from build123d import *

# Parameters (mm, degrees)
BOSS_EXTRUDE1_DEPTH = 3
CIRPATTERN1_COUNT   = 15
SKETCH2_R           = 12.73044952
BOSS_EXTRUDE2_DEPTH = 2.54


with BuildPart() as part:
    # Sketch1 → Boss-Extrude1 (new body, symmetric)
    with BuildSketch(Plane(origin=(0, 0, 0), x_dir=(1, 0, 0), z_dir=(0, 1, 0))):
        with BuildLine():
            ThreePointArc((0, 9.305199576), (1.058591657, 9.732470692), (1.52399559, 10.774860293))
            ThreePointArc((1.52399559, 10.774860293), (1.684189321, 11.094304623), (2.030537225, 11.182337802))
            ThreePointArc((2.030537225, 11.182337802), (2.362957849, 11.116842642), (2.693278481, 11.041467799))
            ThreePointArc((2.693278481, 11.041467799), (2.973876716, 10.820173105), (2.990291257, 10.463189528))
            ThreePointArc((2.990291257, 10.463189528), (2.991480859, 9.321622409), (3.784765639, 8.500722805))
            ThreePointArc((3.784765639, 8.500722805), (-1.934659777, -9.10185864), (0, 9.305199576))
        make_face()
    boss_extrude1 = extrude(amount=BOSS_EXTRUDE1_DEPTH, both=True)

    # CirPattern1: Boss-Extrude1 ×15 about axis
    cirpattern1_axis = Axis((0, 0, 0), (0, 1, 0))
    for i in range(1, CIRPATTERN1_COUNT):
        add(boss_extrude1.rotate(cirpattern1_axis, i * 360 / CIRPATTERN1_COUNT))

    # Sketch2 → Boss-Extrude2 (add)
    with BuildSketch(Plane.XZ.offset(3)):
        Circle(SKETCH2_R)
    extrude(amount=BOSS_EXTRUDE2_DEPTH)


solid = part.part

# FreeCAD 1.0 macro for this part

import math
import FreeCAD as App
import Part
import Sketcher

doc = App.newDocument("Part")
params = doc.addObject("Spreadsheet::Sheet", "Params")
for row, (alias, value) in enumerate([
    ("sketch1_radius", "0.43 mm"),
    ("pad1_length", "6 mm"),
    ("pad2_length", "2.54 mm"),
], start=1):
    params.set(f"A{row}", alias)
    params.set(f"B{row}", "=" + value)
    params.setAlias(f"B{row}", alias)

body = doc.addObject("PartDesign::Body", "Body")

# Sketch on XZ plane
sketch1 = body.newObject("Sketcher::SketchObject", "Sketch")
sketch1.AttachmentSupport = (doc.getObject("XZ_Plane"), [""])
sketch1.MapMode = "FlatFace"
sketch1.addGeometry([
    Part.ArcOfCircle(Part.Circle(App.Vector(0, -10.8302, 0), App.Vector(0, 0, 1), 1.525), math.radians(2.079609), math.radians(90)),  # 0
    Part.ArcOfCircle(Part.Circle(App.Vector(0, 0, 0), App.Vector(0, 0, 1), 9.3052), math.radians(-66), math.radians(270)),  # 1
    Part.ArcOfCircle(Part.Circle(App.Vector(4.405039, -9.89388, 0), App.Vector(0, 0, 1), 1.525), math.radians(114), math.radians(201.920391)),  # 2
    Part.ArcOfCircle(Part.Circle(App.Vector(2.591379, -10.623716, 0), App.Vector(0, 0, 1), 0.43), math.radians(-76.291875), math.radians(21.920391)),  # 3
    Part.ArcOfCircle(Part.Circle(App.Vector(0, 0.000001, 0), App.Vector(0, 0, 1), 11.365201), math.radians(-79.708124), math.radians(-76.291876)),  # 4
    Part.ArcOfCircle(Part.Circle(App.Vector(1.953712, -10.759256, 0), App.Vector(0, 0, 1), 0.43), math.radians(-177.920391), math.radians(-79.708125)),  # 5
], False)
sketch1.addConstraint([
    Sketcher.Constraint("Tangent", 0, 2, 1, 2),
    Sketcher.Constraint("Tangent", 1, 1, 2, 1),
    Sketcher.Constraint("Tangent", 2, 2, 3, 2),
    Sketcher.Constraint("Tangent", 3, 1, 4, 2),
    Sketcher.Constraint("Tangent", 4, 1, 5, 2),
    Sketcher.Constraint("Tangent", 5, 1, 0, 1),
    Sketcher.Constraint("Coincident", 1, 3, -1, 1),
    Sketcher.Constraint("Coincident", 4, 3, -1, 1),
    Sketcher.Constraint("Equal", 0, 2),
    Sketcher.Constraint("Equal", 3, 5),
    Sketcher.Constraint("PointOnObject", 0, 3, -2),
    Sketcher.Constraint("Radius", 3, 0.43),
    Sketcher.Constraint("Radius", 0, 1.525),
    Sketcher.Constraint("Radius", 1, 9.3052),
    Sketcher.Constraint("Radius", 4, 11.365201),
    Sketcher.Constraint("DistanceX", 3, 3, 3, 1, 0.1019),
])
sketch1.setExpression("Constraints[11]", "Params.sketch1_radius")
pad1 = body.newObject("PartDesign::Pad", "Pad")
pad1.Profile = sketch1
pad1.setExpression("Length", "Params.pad1_length")
pad1.Midplane = True
doc.recompute()

polarpattern = body.newObject("PartDesign::PolarPattern", "PolarPattern")
polarpattern.Originals = [pad1]
polarpattern.Axis = (doc.getObject("Y_Axis"), [""])
polarpattern.Angle = 360
polarpattern.Occurrences = 15
body.Tip = polarpattern

# Sketch on XZ plane
sketch2 = body.newObject("Sketcher::SketchObject", "Sketch001")
sketch2.AttachmentSupport = (doc.getObject("XZ_Plane"), [""])
sketch2.MapMode = "FlatFace"
sketch2.AttachmentOffset = App.Placement(App.Vector(0, 0, 3), App.Rotation())
sketch2.addGeometry(Part.Circle(App.Vector(0, 0, 0), App.Vector(0, 0, 1), 12.73045), False)
sketch2.addConstraint([
    Sketcher.Constraint("Coincident", 0, 3, -1, 1),
    Sketcher.Constraint("Diameter", 0, 25.460899),
])
pad2 = body.newObject("PartDesign::Pad", "Pad001")
pad2.Profile = sketch2
pad2.setExpression("Length", "Params.pad2_length")

doc.recompute()
